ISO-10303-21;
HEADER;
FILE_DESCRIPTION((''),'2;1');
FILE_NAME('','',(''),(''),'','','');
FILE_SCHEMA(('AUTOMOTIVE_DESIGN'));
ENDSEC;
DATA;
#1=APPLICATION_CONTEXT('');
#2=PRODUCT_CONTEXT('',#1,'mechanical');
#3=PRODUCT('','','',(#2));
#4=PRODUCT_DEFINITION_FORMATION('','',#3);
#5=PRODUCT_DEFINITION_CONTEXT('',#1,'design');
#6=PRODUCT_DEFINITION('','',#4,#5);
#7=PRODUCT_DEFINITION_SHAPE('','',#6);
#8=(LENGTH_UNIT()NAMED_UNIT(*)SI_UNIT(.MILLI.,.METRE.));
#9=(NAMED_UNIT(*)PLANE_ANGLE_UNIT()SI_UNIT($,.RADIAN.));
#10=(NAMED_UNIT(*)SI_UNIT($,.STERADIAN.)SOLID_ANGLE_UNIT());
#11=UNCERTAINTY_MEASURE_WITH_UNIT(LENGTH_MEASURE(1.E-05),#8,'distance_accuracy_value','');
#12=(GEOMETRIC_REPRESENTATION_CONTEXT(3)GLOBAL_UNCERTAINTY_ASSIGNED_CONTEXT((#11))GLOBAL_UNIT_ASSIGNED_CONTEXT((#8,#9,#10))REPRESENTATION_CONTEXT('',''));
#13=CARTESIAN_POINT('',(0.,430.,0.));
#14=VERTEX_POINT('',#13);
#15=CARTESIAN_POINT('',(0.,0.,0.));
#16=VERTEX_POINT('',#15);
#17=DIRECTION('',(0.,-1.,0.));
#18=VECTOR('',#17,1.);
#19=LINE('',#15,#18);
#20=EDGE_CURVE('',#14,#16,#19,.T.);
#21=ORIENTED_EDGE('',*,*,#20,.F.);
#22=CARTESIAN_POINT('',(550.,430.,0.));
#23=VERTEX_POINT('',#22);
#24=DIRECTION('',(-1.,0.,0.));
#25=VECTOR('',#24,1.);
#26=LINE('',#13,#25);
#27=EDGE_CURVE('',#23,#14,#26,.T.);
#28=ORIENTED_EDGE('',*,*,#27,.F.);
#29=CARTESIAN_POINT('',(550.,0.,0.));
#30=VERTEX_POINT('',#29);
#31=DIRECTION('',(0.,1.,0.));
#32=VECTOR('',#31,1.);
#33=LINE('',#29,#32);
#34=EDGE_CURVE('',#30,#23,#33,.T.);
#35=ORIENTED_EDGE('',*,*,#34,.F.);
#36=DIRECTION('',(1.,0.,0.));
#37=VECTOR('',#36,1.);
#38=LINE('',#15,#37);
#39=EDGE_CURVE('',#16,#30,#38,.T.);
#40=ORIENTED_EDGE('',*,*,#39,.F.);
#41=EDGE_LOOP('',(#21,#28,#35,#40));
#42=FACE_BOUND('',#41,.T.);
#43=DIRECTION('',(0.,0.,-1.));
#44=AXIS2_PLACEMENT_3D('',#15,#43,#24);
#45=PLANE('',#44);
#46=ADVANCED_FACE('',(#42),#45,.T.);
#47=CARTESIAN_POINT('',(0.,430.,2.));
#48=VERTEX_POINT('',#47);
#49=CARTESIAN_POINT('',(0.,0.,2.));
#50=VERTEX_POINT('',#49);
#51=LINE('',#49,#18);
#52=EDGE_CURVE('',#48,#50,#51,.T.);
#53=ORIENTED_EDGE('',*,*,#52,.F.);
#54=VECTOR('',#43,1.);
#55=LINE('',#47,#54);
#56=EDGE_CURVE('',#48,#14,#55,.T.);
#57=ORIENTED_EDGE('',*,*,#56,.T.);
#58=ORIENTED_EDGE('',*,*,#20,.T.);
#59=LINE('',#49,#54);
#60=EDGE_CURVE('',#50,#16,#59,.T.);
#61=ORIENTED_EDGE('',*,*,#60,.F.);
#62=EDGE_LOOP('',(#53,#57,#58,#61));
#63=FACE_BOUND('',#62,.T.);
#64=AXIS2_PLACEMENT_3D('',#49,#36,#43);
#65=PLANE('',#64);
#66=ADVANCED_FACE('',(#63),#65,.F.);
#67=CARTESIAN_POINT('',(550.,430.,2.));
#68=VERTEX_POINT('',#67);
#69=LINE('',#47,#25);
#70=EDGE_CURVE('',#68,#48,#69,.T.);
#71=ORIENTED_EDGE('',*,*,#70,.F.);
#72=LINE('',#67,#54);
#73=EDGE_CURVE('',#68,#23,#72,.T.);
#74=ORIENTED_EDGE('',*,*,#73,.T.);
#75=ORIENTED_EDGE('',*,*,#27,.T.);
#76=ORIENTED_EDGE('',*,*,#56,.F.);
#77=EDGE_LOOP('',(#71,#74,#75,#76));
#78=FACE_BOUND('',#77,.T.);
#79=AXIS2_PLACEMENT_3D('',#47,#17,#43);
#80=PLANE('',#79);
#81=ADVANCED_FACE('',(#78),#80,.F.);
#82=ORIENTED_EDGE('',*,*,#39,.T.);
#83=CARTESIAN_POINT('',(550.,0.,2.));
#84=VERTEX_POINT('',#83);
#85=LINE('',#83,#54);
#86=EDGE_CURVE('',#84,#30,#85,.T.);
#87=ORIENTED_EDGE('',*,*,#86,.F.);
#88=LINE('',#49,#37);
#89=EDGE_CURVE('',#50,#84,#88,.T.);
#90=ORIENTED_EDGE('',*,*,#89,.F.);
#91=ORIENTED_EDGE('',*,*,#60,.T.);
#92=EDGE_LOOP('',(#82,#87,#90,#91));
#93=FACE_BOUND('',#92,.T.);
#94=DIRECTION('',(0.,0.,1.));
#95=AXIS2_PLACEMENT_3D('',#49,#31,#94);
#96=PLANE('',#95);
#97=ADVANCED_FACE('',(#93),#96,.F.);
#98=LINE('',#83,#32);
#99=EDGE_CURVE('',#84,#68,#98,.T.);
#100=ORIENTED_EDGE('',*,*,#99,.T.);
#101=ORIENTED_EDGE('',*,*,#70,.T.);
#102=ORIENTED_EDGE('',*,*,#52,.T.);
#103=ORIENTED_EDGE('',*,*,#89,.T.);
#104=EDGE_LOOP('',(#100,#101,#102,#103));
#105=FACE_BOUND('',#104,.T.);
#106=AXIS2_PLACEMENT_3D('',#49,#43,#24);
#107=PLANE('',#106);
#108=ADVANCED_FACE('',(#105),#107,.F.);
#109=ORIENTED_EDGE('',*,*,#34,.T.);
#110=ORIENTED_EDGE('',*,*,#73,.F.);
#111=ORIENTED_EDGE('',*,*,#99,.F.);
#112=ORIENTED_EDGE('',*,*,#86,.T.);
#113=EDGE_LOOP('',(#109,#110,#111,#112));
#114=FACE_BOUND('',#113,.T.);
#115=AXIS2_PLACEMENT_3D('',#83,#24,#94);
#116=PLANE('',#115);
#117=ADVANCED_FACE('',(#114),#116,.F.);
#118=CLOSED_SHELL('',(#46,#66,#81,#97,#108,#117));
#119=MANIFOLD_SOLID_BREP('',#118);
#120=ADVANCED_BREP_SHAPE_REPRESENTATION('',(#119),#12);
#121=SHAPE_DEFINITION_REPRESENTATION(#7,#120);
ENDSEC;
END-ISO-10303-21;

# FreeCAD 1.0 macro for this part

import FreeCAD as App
import Part
import Sketcher
from FreeCAD import Vector
Q = App.Units.Quantity

doc = App.newDocument("Part")
params = doc.addObject("Spreadsheet::Sheet", "Params")
for row, (alias, value) in enumerate([
    ("sketch1_width", "550 mm"),
    ("sketch1_height", "430 mm"),
    ("pad1_length", "2 mm"),
], start=1):
    params.set(f"A{row}", alias)
    params.set(f"B{row}", "=" + value)
    params.setAlias(f"B{row}", alias)

body = doc.addObject("PartDesign::Body", "Body")

sketch1 = doc.addObject("Sketcher::SketchObject", "Sketch")
body.addObject(sketch1)
sketch1.AttachmentSupport = (doc.XY_Plane, [""])
sketch1.MapMode = "FlatFace"
sketch1.addGeometry(Part.LineSegment(Vector(0, 430, 0), Vector(0, 0, 0)), False)
sketch1.addGeometry(Part.LineSegment(Vector(0, 0, 0), Vector(550, 0, 0)), False)
sketch1.addGeometry(Part.LineSegment(Vector(550, 0, 0), Vector(550, 430, 0)), False)
sketch1.addGeometry(Part.LineSegment(Vector(550, 430, 0), Vector(0, 430, 0)), False)
sketch1.addConstraint(Sketcher.Constraint("Coincident", 0, 2, 1, 1))
sketch1.addConstraint(Sketcher.Constraint("Coincident", 1, 2, 2, 1))
sketch1.addConstraint(Sketcher.Constraint("Coincident", 2, 2, 3, 1))
sketch1.addConstraint(Sketcher.Constraint("Coincident", 3, 2, 0, 1))
sketch1.addConstraint(Sketcher.Constraint("Vertical", 0))
sketch1.addConstraint(Sketcher.Constraint("Horizontal", 1))
sketch1.addConstraint(Sketcher.Constraint("Vertical", 2))
sketch1.addConstraint(Sketcher.Constraint("Horizontal", 3))
sketch1.addConstraint(Sketcher.Constraint("Coincident", 0, 2, -1, 1))
sketch1.addConstraint(Sketcher.Constraint("DistanceX", 1, 1, 1, 2, Q("550 mm")))
sketch1.addConstraint(Sketcher.Constraint("DistanceY", 0, 2, 0, 1, Q("430 mm")))
sketch1.setExpression("Constraints[9]", "Params.sketch1_width")
sketch1.setExpression("Constraints[10]", "Params.sketch1_height")
pad1 = doc.addObject("PartDesign::Pad", "Pad")
body.addObject(pad1)
pad1.Profile = sketch1
pad1.setExpression("Length", "Params.pad1_length")

doc.recompute()
